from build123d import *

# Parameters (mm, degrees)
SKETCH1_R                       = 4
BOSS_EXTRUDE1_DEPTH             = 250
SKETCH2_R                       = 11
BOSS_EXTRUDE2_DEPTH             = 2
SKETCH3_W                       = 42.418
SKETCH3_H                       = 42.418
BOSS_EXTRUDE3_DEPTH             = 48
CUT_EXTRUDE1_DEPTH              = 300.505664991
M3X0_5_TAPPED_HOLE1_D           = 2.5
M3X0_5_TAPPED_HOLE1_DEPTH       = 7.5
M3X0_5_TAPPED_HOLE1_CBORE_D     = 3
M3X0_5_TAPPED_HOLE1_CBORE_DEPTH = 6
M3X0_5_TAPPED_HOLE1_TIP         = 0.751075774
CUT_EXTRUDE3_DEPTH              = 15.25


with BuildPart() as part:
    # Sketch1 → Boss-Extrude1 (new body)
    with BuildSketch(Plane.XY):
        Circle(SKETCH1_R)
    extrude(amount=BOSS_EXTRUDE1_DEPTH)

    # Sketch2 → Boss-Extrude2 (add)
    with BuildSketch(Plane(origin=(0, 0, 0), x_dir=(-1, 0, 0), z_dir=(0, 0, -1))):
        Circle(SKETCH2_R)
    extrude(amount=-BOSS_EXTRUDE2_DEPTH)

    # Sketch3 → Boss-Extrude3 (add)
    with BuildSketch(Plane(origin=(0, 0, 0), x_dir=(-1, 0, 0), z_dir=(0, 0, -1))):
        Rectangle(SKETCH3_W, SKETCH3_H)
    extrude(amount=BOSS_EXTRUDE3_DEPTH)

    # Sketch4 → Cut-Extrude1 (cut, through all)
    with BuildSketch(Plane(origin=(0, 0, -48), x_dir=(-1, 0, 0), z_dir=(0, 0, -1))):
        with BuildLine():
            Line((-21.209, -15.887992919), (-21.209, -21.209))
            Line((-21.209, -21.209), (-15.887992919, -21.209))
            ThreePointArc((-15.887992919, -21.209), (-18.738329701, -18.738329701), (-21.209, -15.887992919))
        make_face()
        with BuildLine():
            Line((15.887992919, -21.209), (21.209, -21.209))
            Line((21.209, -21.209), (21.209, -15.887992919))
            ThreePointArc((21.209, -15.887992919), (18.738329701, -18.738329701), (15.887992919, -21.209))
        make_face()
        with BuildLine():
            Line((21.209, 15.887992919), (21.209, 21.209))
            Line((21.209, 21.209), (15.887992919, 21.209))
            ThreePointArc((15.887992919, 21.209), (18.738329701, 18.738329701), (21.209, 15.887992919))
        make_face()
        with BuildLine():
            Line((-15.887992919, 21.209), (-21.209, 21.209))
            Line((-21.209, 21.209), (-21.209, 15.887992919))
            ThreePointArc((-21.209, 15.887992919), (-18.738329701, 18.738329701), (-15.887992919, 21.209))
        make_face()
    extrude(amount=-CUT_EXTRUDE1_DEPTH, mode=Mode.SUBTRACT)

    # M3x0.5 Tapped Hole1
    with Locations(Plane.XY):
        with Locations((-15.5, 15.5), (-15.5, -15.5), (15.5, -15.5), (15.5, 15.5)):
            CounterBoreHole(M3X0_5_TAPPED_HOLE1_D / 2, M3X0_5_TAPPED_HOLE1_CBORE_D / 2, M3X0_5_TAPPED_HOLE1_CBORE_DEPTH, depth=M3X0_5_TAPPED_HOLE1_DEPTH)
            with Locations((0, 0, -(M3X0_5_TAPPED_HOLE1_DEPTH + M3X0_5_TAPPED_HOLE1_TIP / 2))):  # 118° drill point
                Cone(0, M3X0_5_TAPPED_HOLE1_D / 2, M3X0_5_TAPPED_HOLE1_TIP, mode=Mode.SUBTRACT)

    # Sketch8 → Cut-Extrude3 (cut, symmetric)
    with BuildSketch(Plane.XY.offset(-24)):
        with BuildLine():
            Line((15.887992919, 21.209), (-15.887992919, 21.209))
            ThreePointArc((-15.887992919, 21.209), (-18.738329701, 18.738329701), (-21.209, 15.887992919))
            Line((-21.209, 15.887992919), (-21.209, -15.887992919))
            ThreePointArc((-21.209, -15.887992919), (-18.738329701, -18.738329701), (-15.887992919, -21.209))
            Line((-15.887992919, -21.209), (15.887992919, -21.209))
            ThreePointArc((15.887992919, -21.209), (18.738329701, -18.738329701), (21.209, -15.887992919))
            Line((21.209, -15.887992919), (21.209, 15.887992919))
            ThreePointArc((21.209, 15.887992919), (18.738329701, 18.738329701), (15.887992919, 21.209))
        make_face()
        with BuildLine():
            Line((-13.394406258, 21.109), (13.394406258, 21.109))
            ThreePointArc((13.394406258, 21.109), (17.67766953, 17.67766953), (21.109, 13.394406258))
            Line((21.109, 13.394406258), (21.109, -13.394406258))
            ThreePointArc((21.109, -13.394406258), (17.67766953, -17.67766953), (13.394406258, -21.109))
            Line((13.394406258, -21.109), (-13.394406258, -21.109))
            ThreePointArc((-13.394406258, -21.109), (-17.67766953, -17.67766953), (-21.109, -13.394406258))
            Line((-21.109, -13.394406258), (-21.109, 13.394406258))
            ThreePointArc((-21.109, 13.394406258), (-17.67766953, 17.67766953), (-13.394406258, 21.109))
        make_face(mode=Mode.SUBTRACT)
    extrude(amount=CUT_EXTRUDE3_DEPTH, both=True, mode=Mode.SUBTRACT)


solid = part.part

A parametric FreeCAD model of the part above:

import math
import FreeCAD as App
import Part
import Sketcher
from FreeCAD import Vector
Q = App.Units.Quantity


def add_polygon(sketch, points):
    """Adds a closed chain of lines whose ends are joined by coincident constraints."""
    first, n = sketch.GeometryCount, len(points)
    for a, b in zip(points, points[1:] + points[:1]):
        sketch.addGeometry(Part.LineSegment(App.Vector(*a, 0), App.Vector(*b, 0)), False)
    for i in range(n):
        sketch.addConstraint(Sketcher.Constraint("Coincident", first + i, 2, first + (i + 1) % n, 1))

doc = App.newDocument("Part")
params = doc.addObject("Spreadsheet::Sheet", "Params")
for row, (alias, value) in enumerate([
    ("sketch1_diameter", "8 mm"),
    ("pad1_length", "250 mm"),
    ("sketch2_diameter", "22 mm"),
    ("pad2_length", "2 mm"),
    ("pad3_length", "48 mm"),
    ("sketch4_radius", "26.5 mm"),
    ("sketch5_diameter", "2.5 mm"),
    ("hole_diameter", "2.5 mm"),
    ("hole_depth", "7.5 mm"),
    ("hole_cbore_diameter", "3 mm"),
    ("hole_cbore_depth", "6 mm"),
    ("sketch6_radius", "25 mm"),
    ("sketch6_radius2", "26.5 mm"),
    ("pocket2_length", "30.5 mm"),
], start=1):
    params.set(f"A{row}", alias)
    params.set(f"B{row}", "=" + value)
    params.setAlias(f"B{row}", alias)

body = doc.addObject("PartDesign::Body", "Body")

# Sketch on XY plane
sketch1 = doc.addObject("Sketcher::SketchObject", "Sketch")
body.addObject(sketch1)
sketch1.AttachmentSupport = (doc.XY_Plane, [""])
sketch1.MapMode = "FlatFace"
sketch1.addGeometry(Part.Circle(Vector(0, 0, 0), Vector(0, 0, 1), 4), False)
sketch1.addConstraint(Sketcher.Constraint("Coincident", 0, 3, -1, 1))
sketch1.addConstraint(Sketcher.Constraint("Diameter", 0, Q("8 mm")))
sketch1.setExpression("Constraints[1]", "Params.sketch1_diameter")
pad1 = doc.addObject("PartDesign::Pad", "Pad")
body.addObject(pad1)
pad1.Profile = sketch1
pad1.setExpression("Length", "Params.pad1_length")

# Sketch on XY plane
sketch2 = doc.addObject("Sketcher::SketchObject", "Sketch001")
body.addObject(sketch2)
sketch2.AttachmentSupport = (doc.XY_Plane, [""])
sketch2.MapMode = "FlatFace"
sketch2.addGeometry(Part.Circle(Vector(0, 0, 0), Vector(0, 0, 1), 11), False)
sketch2.addConstraint(Sketcher.Constraint("Coincident", 0, 3, -1, 1))
sketch2.addConstraint(Sketcher.Constraint("Diameter", 0, Q("22 mm")))
sketch2.setExpression("Constraints[1]", "Params.sketch2_diameter")
pad2 = doc.addObject("PartDesign::Pad", "Pad001")
body.addObject(pad2)
pad2.Profile = sketch2
pad2.setExpression("Length", "Params.pad2_length")

# Sketch on XY plane
sketch3 = doc.addObject("Sketcher::SketchObject", "Sketch002")
body.addObject(sketch3)
sketch3.AttachmentSupport = (doc.XY_Plane, [""])
sketch3.MapMode = "FlatFace"
add_polygon(sketch3, [(21, 21), (21, -21), (-21, -21), (-21, 21)])  # lines 0-3
sketch3.addConstraint(Sketcher.Constraint("Vertical", 0))
sketch3.addConstraint(Sketcher.Constraint("Horizontal", 1))
sketch3.addConstraint(Sketcher.Constraint("Vertical", 2))
sketch3.addConstraint(Sketcher.Constraint("Horizontal", 3))
sketch3.addConstraint(Sketcher.Constraint("Symmetric", 0, 2, 2, 2, -1, 1))
sketch3.addConstraint(Sketcher.Constraint("Equal", 3, 0))
sketch3.addConstraint(Sketcher.Constraint("DistanceX", 1, 2, 1, 1, Q("42.418 mm")))
pad3 = doc.addObject("PartDesign::Pad", "Pad002")
body.addObject(pad3)
pad3.Profile = sketch3
pad3.setExpression("Length", "Params.pad3_length")
pad3.Reversed = True

# Sketch on XY plane
sketch4 = doc.addObject("Sketcher::SketchObject", "Sketch003")
body.addObject(sketch4)
sketch4.AttachmentSupport = (doc.XY_Plane, [""])
sketch4.MapMode = "FlatFace"
sketch4.AttachmentOffset = App.Placement(Vector(0, 0, -48), App.Rotation())
sketch4.addGeometry(Part.LineSegment(Vector(21, -16, 0), Vector(21, -21, 0)), False)
sketch4.addGeometry(Part.LineSegment(Vector(21, -21, 0), Vector(16, -21, 0)), False)
sketch4.addGeometry(Part.ArcOfCircle(Part.Circle(Vector(0, 0, 0), Vector(0, 0, 1), 27), math.radians(-53.16), math.radians(-36.84)), False)
sketch4.addGeometry(Part.LineSegment(Vector(-16, -21, 0), Vector(-21, -21, 0)), False)
sketch4.addGeometry(Part.LineSegment(Vector(-21, -21, 0), Vector(-21, -16, 0)), False)
sketch4.addGeometry(Part.ArcOfCircle(Part.Circle(Vector(0, 0, 0), Vector(0, 0, 1), 27), math.radians(-143.16), math.radians(-126.84)), False)
sketch4.addGeometry(Part.LineSegment(Vector(-21, 16, 0), Vector(-21, 21, 0)), False)
sketch4.addGeometry(Part.LineSegment(Vector(-21, 21, 0), Vector(-16, 21, 0)), False)
sketch4.addGeometry(Part.ArcOfCircle(Part.Circle(Vector(0, 0, 0), Vector(0, 0, 1), 27), math.radians(126.84), math.radians(143.16)), False)
sketch4.addGeometry(Part.LineSegment(Vector(16, 21, 0), Vector(21, 21, 0)), False)
sketch4.addGeometry(Part.LineSegment(Vector(21, 21, 0), Vector(21, 16, 0)), False)
sketch4.addGeometry(Part.ArcOfCircle(Part.Circle(Vector(0, 0, 0), Vector(0, 0, 1), 27), math.radians(36.84), math.radians(53.16)), False)
sketch4.addConstraint(Sketcher.Constraint("Coincident", 0, 2, 1, 1))
sketch4.addConstraint(Sketcher.Constraint("Coincident", 1, 2, 2, 1))
sketch4.addConstraint(Sketcher.Constraint("Coincident", 2, 2, 0, 1))
sketch4.addConstraint(Sketcher.Constraint("Coincident", 3, 2, 4, 1))
sketch4.addConstraint(Sketcher.Constraint("Coincident", 4, 2, 5, 1))
sketch4.addConstraint(Sketcher.Constraint("Coincident", 5, 2, 3, 1))
sketch4.addConstraint(Sketcher.Constraint("Coincident", 6, 2, 7, 1))
sketch4.addConstraint(Sketcher.Constraint("Coincident", 7, 2, 8, 1))
sketch4.addConstraint(Sketcher.Constraint("Coincident", 8, 2, 6, 1))
sketch4.addConstraint(Sketcher.Constraint("Coincident", 9, 2, 10, 1))
sketch4.addConstraint(Sketcher.Constraint("Coincident", 10, 2, 11, 1))
sketch4.addConstraint(Sketcher.Constraint("Coincident", 11, 2, 9, 1))
sketch4.addConstraint(Sketcher.Constraint("Vertical", 0))
sketch4.addConstraint(Sketcher.Constraint("Horizontal", 1))
sketch4.addConstraint(Sketcher.Constraint("Horizontal", 3))
sketch4.addConstraint(Sketcher.Constraint("Vertical", 4))
sketch4.addConstraint(Sketcher.Constraint("Vertical", 6))
sketch4.addConstraint(Sketcher.Constraint("Horizontal", 7))
sketch4.addConstraint(Sketcher.Constraint("Horizontal", 9))
sketch4.addConstraint(Sketcher.Constraint("Vertical", 10))
sketch4.addConstraint(Sketcher.Constraint("Coincident", 2, 3, -1, 1))
sketch4.addConstraint(Sketcher.Constraint("Coincident", 5, 3, -1, 1))
sketch4.addConstraint(Sketcher.Constraint("Coincident", 8, 3, -1, 1))
sketch4.addConstraint(Sketcher.Constraint("Coincident", 11, 3, -1, 1))
sketch4.addConstraint(Sketcher.Constraint("Equal", 2, 5))
sketch4.addConstraint(Sketcher.Constraint("Equal", 5, 8))
sketch4.addConstraint(Sketcher.Constraint("Equal", 8, 11))
sketch4.addConstraint(Sketcher.Constraint("Symmetric", 0, 2, 6, 2, -1, 1))
sketch4.addConstraint(Sketcher.Constraint("Symmetric", 3, 2, 9, 2, -1, 1))
sketch4.addConstraint(Sketcher.Constraint("Symmetric", 0, 2, 3, 2, -2))
sketch4.addConstraint(Sketcher.Constraint("Equal", 9, 0))
sketch4.addConstraint(Sketcher.Constraint("Radius", 2, Q("26.5 mm")))
sketch4.addConstraint(Sketcher.Constraint("DistanceX", -1, 1, 0, 2, Q("21.209 mm")))
sketch4.setExpression("Constraints[31]", "Params.sketch4_radius")
pocket1 = doc.addObject("PartDesign::Pocket", "Pocket")
body.addObject(pocket1)
pocket1.Profile = sketch4
pocket1.Type = "ThroughAll"
pocket1.Reversed = True

# Sketch on XY plane
sketch5 = doc.addObject("Sketcher::SketchObject", "Sketch004")
body.addObject(sketch5)
sketch5.AttachmentSupport = (doc.XY_Plane, [""])
sketch5.MapMode = "FlatFace"
sketch5.addGeometry(Part.Circle(Vector(-15.5, 15.5, 0), Vector(0, 0, 1), 1.2), False)
sketch5.addGeometry(Part.Circle(Vector(-15.5, -15.5, 0), Vector(0, 0, 1), 1.2), False)
sketch5.addGeometry(Part.Circle(Vector(15.5, -15.5, 0), Vector(0, 0, 1), 1.2), False)
sketch5.addGeometry(Part.Circle(Vector(15.5, 15.5, 0), Vector(0, 0, 1), 1.2), False)
sketch5.addConstraint(Sketcher.Constraint("Equal", 0, 1))
sketch5.addConstraint(Sketcher.Constraint("Equal", 1, 2))
sketch5.addConstraint(Sketcher.Constraint("Equal", 2, 3))
sketch5.addConstraint(Sketcher.Constraint("Symmetric", 0, 3, 2, 3, -1, 1))
sketch5.addConstraint(Sketcher.Constraint("Symmetric", 1, 3, 3, 3, -1, 1))
sketch5.addConstraint(Sketcher.Constraint("Symmetric", 1, 3, 2, 3, -2))
sketch5.addConstraint(Sketcher.Constraint("Diameter", 0, Q("2.5 mm")))
sketch5.addConstraint(Sketcher.Constraint("DistanceY", 1, 3, 0, 3, Q("31 mm")))
sketch5.addConstraint(Sketcher.Constraint("DistanceX", 1, 3, 2, 3, Q("31 mm")))
sketch5.setExpression("Constraints[6]", "Params.sketch5_diameter")
doc.recompute()
hole = doc.addObject("PartDesign::Hole", "Hole")
body.addObject(hole)
hole.Profile = sketch5
hole.ThreadType = "None"
hole.setExpression("Diameter", "Params.hole_diameter")
hole.DepthType = "Dimension"
hole.setExpression("Depth", "Params.hole_depth")
hole.DrillPoint = "Angled"
hole.DrillPointAngle = 118
hole.HoleCutType = "Counterbore"
hole.setExpression("HoleCutDiameter", "Params.hole_cbore_diameter")
hole.setExpression("HoleCutDepth", "Params.hole_cbore_depth")

# Sketch on XY plane
sketch6 = doc.addObject("Sketcher::SketchObject", "Sketch005")
body.addObject(sketch6)
sketch6.AttachmentSupport = (doc.XY_Plane, [""])
sketch6.MapMode = "FlatFace"
sketch6.AttachmentOffset = App.Placement(Vector(0, 0, -24), App.Rotation())
sketch6.addGeometry(Part.LineSegment(Vector(16, 21, 0), Vector(-16, 21, 0)), False)
sketch6.addGeometry(Part.ArcOfCircle(Part.Circle(Vector(0, 0, 0), Vector(0, 0, 1), 27), math.radians(126.84), math.radians(143.16)), False)
sketch6.addGeometry(Part.LineSegment(Vector(-21, 16, 0), Vector(-21, -16, 0)), False)
sketch6.addGeometry(Part.ArcOfCircle(Part.Circle(Vector(0, 0, 0), Vector(0, 0, 1), 27), math.radians(-143.16), math.radians(-126.84)), False)
sketch6.addGeometry(Part.LineSegment(Vector(-16, -21, 0), Vector(16, -21, 0)), False)
sketch6.addGeometry(Part.ArcOfCircle(Part.Circle(Vector(0, 0, 0), Vector(0, 0, 1), 27), math.radians(-53.16), math.radians(-36.84)), False)
sketch6.addGeometry(Part.LineSegment(Vector(21, -16, 0), Vector(21, 16, 0)), False)
sketch6.addGeometry(Part.ArcOfCircle(Part.Circle(Vector(0, 0, 0), Vector(0, 0, 1), 27), math.radians(36.84), math.radians(53.16)), False)
sketch6.addGeometry(Part.ArcOfCircle(Part.Circle(Vector(0, 0, 0), Vector(0, 0, 1), 25), math.radians(122), math.radians(148)), False)
sketch6.addGeometry(Part.LineSegment(Vector(-13, 21, 0), Vector(13, 21, 0)), False)
sketch6.addGeometry(Part.ArcOfCircle(Part.Circle(Vector(0, 0, 0), Vector(0, 0, 1), 25), math.radians(32), math.radians(58)), False)
sketch6.addGeometry(Part.LineSegment(Vector(21, 13, 0), Vector(21, -13, 0)), False)
sketch6.addGeometry(Part.ArcOfCircle(Part.Circle(Vector(0, 0, 0), Vector(0, 0, 1), 25), math.radians(-58), math.radians(-32)), False)
sketch6.addGeometry(Part.LineSegment(Vector(13, -21, 0), Vector(-13, -21, 0)), False)
sketch6.addGeometry(Part.ArcOfCircle(Part.Circle(Vector(0, 0, 0), Vector(0, 0, 1), 25), math.radians(-148), math.radians(-122)), False)
sketch6.addGeometry(Part.LineSegment(Vector(-21, -13, 0), Vector(-21, 13, 0)), False)
sketch6.addConstraint(Sketcher.Constraint("Coincident", 0, 2, 1, 1))
sketch6.addConstraint(Sketcher.Constraint("Coincident", 1, 2, 2, 1))
sketch6.addConstraint(Sketcher.Constraint("Coincident", 2, 2, 3, 1))
sketch6.addConstraint(Sketcher.Constraint("Coincident", 3, 2, 4, 1))
sketch6.addConstraint(Sketcher.Constraint("Coincident", 4, 2, 5, 1))
sketch6.addConstraint(Sketcher.Constraint("Coincident", 5, 2, 6, 1))
sketch6.addConstraint(Sketcher.Constraint("Coincident", 6, 2, 7, 1))
sketch6.addConstraint(Sketcher.Constraint("Coincident", 7, 2, 0, 1))
sketch6.addConstraint(Sketcher.Constraint("Coincident", 8, 1, 9, 1))
sketch6.addConstraint(Sketcher.Constraint("Coincident", 9, 2, 10, 2))
sketch6.addConstraint(Sketcher.Constraint("Coincident", 10, 1, 11, 1))
sketch6.addConstraint(Sketcher.Constraint("Coincident", 11, 2, 12, 2))
sketch6.addConstraint(Sketcher.Constraint("Coincident", 12, 1, 13, 1))
sketch6.addConstraint(Sketcher.Constraint("Coincident", 13, 2, 14, 2))
sketch6.addConstraint(Sketcher.Constraint("Coincident", 14, 1, 15, 1))
sketch6.addConstraint(Sketcher.Constraint("Coincident", 15, 2, 8, 2))
sketch6.addConstraint(Sketcher.Constraint("Horizontal", 0))
sketch6.addConstraint(Sketcher.Constraint("Vertical", 2))
sketch6.addConstraint(Sketcher.Constraint("Horizontal", 4))
sketch6.addConstraint(Sketcher.Constraint("Vertical", 6))
sketch6.addConstraint(Sketcher.Constraint("Horizontal", 9))
sketch6.addConstraint(Sketcher.Constraint("Vertical", 11))
sketch6.addConstraint(Sketcher.Constraint("Horizontal", 13))
sketch6.addConstraint(Sketcher.Constraint("Vertical", 15))
sketch6.addConstraint(Sketcher.Constraint("Coincident", 1, 3, -1, 1))
sketch6.addConstraint(Sketcher.Constraint("Coincident", 3, 3, -1, 1))
sketch6.addConstraint(Sketcher.Constraint("Coincident", 5, 3, -1, 1))
sketch6.addConstraint(Sketcher.Constraint("Coincident", 7, 3, -1, 1))
sketch6.addConstraint(Sketcher.Constraint("Coincident", 8, 3, -1, 1))
sketch6.addConstraint(Sketcher.Constraint("Coincident", 10, 3, -1, 1))
sketch6.addConstraint(Sketcher.Constraint("Coincident", 12, 3, -1, 1))
sketch6.addConstraint(Sketcher.Constraint("Coincident", 14, 3, -1, 1))
sketch6.addConstraint(Sketcher.Constraint("Equal", 1, 3))
sketch6.addConstraint(Sketcher.Constraint("Equal", 3, 5))
sketch6.addConstraint(Sketcher.Constraint("Equal", 5, 7))
sketch6.addConstraint(Sketcher.Constraint("Equal", 8, 10))
sketch6.addConstraint(Sketcher.Constraint("Equal", 10, 12))
sketch6.addConstraint(Sketcher.Constraint("Equal", 12, 14))
sketch6.addConstraint(Sketcher.Constraint("Horizontal", 2, 2, 5, 2))
sketch6.addConstraint(Sketcher.Constraint("Horizontal", 11, 2, 14, 1))
sketch6.addConstraint(Sketcher.Constraint("Vertical", 0, 2, 3, 2))
sketch6.addConstraint(Sketcher.Constraint("Vertical", 9, 2, 12, 1))
sketch6.addConstraint(Sketcher.Constraint("Equal", 4, 2))
sketch6.addConstraint(Sketcher.Constraint("Equal", 13, 11))
sketch6.addConstraint(Sketcher.Constraint("Radius", 8, Q("25 mm")))
sketch6.addConstraint(Sketcher.Constraint("Radius", 1, Q("26.5 mm")))
sketch6.addConstraint(Sketcher.Constraint("DistanceY", 8, 1, 0, 2, Q("0.1 mm")))
sketch6.addConstraint(Sketcher.Constraint("DistanceY", -1, 1, 0, 2, Q("21.209 mm")))
sketch6.setExpression("Constraints[44]", "Params.sketch6_radius")
sketch6.setExpression("Constraints[45]", "Params.sketch6_radius2")
pocket2 = doc.addObject("PartDesign::Pocket", "Pocket001")
body.addObject(pocket2)
pocket2.Profile = sketch6
pocket2.setExpression("Length", "Params.pocket2_length")
pocket2.Midplane = True

doc.recompute()
